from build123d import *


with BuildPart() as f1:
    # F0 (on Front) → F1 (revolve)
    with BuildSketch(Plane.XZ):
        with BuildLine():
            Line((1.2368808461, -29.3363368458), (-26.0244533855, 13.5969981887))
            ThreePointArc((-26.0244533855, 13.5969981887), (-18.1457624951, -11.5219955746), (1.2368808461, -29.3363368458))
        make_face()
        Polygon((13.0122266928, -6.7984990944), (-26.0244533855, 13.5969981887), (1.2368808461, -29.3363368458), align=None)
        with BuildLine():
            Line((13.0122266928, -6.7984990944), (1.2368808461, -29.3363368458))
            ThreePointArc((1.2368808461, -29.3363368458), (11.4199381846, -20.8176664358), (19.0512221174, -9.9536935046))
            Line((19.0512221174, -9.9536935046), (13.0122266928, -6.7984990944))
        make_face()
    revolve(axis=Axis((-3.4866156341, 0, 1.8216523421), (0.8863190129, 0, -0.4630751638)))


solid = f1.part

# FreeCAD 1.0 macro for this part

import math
import FreeCAD as App
import Part
import Sketcher

V = App.Vector
Q = App.Units.Quantity

doc = App.newDocument("Part")
body = doc.addObject("PartDesign::Body", "Body")

sketch1 = body.newObject("Sketcher::SketchObject", "Sketch")
sketch1.AttachmentSupport = (doc.getObject("XZ_Plane"), [""])
sketch1.MapMode = "FlatFace"
sketch1.addGeometry(Part.ArcOfCircle(Part.Circle(V(25, 16, 0), V(0, 0, 1), 51), math.radians(-178), math.radians(-118)), False)
sketch1.addGeometry(Part.ArcOfCircle(Part.Circle(V(-26, 14, 0), V(0, 0, 1), 51), math.radians(-58), math.radians(-28)), False)
sketch1.addGeometry(Part.LineSegment(V(19, -10, 0), V(13, -7, 0)), False)
sketch1.addGeometry(Part.LineSegment(V(13, -7, 0), V(-26, 14, 0)), False)
sketch1.addGeometry(Part.LineSegment(V(-26, 14, 0), V(19, -10, 0)), True)
sketch1.addConstraint(Sketcher.Constraint("Coincident", 0, 2, 1, 1))
sketch1.addConstraint(Sketcher.Constraint("Coincident", 1, 2, 2, 1))
sketch1.addConstraint(Sketcher.Constraint("Coincident", 2, 2, 3, 1))
sketch1.addConstraint(Sketcher.Constraint("Coincident", 3, 2, 0, 1))
sketch1.addConstraint(Sketcher.Constraint("Coincident", 3, 2, 1, 3))
sketch1.addConstraint(Sketcher.Constraint("Coincident", 4, 1, 1, 3))
sketch1.addConstraint(Sketcher.Constraint("Coincident", 4, 2, 1, 2))
sketch1.addConstraint(Sketcher.Constraint("Equal", 0, 1))
sketch1.addConstraint(Sketcher.Constraint("Parallel", 2, 3))
sketch1.addConstraint(Sketcher.Constraint("Distance", 3, Q("1.734 in")))
sketch1.addConstraint(Sketcher.Constraint("Radius", 0, Q("50.857169 mm")))
sketch1.addConstraint(Sketcher.Constraint("DistanceY", -1, 1, 1, 3, Q("13.596998 mm")))
sketch1.addConstraint(Sketcher.Constraint("DistanceY", 2, 2, -1, 1, Q("6.798499 mm")))
sketch1.addConstraint(Sketcher.Constraint("DistanceY", -1, 1, 0, 3, Q("15.739339 mm")))
sketch1.addConstraint(Sketcher.Constraint("DistanceX", -1, 1, 0, 2, Q("1.236881 mm")))
revolution = body.newObject("PartDesign::Revolution", "Revolution")
revolution.Profile = sketch1
revolution.ReferenceAxis = (sketch1, ["Axis0"])
revolution.Angle = 360

doc.recompute()
